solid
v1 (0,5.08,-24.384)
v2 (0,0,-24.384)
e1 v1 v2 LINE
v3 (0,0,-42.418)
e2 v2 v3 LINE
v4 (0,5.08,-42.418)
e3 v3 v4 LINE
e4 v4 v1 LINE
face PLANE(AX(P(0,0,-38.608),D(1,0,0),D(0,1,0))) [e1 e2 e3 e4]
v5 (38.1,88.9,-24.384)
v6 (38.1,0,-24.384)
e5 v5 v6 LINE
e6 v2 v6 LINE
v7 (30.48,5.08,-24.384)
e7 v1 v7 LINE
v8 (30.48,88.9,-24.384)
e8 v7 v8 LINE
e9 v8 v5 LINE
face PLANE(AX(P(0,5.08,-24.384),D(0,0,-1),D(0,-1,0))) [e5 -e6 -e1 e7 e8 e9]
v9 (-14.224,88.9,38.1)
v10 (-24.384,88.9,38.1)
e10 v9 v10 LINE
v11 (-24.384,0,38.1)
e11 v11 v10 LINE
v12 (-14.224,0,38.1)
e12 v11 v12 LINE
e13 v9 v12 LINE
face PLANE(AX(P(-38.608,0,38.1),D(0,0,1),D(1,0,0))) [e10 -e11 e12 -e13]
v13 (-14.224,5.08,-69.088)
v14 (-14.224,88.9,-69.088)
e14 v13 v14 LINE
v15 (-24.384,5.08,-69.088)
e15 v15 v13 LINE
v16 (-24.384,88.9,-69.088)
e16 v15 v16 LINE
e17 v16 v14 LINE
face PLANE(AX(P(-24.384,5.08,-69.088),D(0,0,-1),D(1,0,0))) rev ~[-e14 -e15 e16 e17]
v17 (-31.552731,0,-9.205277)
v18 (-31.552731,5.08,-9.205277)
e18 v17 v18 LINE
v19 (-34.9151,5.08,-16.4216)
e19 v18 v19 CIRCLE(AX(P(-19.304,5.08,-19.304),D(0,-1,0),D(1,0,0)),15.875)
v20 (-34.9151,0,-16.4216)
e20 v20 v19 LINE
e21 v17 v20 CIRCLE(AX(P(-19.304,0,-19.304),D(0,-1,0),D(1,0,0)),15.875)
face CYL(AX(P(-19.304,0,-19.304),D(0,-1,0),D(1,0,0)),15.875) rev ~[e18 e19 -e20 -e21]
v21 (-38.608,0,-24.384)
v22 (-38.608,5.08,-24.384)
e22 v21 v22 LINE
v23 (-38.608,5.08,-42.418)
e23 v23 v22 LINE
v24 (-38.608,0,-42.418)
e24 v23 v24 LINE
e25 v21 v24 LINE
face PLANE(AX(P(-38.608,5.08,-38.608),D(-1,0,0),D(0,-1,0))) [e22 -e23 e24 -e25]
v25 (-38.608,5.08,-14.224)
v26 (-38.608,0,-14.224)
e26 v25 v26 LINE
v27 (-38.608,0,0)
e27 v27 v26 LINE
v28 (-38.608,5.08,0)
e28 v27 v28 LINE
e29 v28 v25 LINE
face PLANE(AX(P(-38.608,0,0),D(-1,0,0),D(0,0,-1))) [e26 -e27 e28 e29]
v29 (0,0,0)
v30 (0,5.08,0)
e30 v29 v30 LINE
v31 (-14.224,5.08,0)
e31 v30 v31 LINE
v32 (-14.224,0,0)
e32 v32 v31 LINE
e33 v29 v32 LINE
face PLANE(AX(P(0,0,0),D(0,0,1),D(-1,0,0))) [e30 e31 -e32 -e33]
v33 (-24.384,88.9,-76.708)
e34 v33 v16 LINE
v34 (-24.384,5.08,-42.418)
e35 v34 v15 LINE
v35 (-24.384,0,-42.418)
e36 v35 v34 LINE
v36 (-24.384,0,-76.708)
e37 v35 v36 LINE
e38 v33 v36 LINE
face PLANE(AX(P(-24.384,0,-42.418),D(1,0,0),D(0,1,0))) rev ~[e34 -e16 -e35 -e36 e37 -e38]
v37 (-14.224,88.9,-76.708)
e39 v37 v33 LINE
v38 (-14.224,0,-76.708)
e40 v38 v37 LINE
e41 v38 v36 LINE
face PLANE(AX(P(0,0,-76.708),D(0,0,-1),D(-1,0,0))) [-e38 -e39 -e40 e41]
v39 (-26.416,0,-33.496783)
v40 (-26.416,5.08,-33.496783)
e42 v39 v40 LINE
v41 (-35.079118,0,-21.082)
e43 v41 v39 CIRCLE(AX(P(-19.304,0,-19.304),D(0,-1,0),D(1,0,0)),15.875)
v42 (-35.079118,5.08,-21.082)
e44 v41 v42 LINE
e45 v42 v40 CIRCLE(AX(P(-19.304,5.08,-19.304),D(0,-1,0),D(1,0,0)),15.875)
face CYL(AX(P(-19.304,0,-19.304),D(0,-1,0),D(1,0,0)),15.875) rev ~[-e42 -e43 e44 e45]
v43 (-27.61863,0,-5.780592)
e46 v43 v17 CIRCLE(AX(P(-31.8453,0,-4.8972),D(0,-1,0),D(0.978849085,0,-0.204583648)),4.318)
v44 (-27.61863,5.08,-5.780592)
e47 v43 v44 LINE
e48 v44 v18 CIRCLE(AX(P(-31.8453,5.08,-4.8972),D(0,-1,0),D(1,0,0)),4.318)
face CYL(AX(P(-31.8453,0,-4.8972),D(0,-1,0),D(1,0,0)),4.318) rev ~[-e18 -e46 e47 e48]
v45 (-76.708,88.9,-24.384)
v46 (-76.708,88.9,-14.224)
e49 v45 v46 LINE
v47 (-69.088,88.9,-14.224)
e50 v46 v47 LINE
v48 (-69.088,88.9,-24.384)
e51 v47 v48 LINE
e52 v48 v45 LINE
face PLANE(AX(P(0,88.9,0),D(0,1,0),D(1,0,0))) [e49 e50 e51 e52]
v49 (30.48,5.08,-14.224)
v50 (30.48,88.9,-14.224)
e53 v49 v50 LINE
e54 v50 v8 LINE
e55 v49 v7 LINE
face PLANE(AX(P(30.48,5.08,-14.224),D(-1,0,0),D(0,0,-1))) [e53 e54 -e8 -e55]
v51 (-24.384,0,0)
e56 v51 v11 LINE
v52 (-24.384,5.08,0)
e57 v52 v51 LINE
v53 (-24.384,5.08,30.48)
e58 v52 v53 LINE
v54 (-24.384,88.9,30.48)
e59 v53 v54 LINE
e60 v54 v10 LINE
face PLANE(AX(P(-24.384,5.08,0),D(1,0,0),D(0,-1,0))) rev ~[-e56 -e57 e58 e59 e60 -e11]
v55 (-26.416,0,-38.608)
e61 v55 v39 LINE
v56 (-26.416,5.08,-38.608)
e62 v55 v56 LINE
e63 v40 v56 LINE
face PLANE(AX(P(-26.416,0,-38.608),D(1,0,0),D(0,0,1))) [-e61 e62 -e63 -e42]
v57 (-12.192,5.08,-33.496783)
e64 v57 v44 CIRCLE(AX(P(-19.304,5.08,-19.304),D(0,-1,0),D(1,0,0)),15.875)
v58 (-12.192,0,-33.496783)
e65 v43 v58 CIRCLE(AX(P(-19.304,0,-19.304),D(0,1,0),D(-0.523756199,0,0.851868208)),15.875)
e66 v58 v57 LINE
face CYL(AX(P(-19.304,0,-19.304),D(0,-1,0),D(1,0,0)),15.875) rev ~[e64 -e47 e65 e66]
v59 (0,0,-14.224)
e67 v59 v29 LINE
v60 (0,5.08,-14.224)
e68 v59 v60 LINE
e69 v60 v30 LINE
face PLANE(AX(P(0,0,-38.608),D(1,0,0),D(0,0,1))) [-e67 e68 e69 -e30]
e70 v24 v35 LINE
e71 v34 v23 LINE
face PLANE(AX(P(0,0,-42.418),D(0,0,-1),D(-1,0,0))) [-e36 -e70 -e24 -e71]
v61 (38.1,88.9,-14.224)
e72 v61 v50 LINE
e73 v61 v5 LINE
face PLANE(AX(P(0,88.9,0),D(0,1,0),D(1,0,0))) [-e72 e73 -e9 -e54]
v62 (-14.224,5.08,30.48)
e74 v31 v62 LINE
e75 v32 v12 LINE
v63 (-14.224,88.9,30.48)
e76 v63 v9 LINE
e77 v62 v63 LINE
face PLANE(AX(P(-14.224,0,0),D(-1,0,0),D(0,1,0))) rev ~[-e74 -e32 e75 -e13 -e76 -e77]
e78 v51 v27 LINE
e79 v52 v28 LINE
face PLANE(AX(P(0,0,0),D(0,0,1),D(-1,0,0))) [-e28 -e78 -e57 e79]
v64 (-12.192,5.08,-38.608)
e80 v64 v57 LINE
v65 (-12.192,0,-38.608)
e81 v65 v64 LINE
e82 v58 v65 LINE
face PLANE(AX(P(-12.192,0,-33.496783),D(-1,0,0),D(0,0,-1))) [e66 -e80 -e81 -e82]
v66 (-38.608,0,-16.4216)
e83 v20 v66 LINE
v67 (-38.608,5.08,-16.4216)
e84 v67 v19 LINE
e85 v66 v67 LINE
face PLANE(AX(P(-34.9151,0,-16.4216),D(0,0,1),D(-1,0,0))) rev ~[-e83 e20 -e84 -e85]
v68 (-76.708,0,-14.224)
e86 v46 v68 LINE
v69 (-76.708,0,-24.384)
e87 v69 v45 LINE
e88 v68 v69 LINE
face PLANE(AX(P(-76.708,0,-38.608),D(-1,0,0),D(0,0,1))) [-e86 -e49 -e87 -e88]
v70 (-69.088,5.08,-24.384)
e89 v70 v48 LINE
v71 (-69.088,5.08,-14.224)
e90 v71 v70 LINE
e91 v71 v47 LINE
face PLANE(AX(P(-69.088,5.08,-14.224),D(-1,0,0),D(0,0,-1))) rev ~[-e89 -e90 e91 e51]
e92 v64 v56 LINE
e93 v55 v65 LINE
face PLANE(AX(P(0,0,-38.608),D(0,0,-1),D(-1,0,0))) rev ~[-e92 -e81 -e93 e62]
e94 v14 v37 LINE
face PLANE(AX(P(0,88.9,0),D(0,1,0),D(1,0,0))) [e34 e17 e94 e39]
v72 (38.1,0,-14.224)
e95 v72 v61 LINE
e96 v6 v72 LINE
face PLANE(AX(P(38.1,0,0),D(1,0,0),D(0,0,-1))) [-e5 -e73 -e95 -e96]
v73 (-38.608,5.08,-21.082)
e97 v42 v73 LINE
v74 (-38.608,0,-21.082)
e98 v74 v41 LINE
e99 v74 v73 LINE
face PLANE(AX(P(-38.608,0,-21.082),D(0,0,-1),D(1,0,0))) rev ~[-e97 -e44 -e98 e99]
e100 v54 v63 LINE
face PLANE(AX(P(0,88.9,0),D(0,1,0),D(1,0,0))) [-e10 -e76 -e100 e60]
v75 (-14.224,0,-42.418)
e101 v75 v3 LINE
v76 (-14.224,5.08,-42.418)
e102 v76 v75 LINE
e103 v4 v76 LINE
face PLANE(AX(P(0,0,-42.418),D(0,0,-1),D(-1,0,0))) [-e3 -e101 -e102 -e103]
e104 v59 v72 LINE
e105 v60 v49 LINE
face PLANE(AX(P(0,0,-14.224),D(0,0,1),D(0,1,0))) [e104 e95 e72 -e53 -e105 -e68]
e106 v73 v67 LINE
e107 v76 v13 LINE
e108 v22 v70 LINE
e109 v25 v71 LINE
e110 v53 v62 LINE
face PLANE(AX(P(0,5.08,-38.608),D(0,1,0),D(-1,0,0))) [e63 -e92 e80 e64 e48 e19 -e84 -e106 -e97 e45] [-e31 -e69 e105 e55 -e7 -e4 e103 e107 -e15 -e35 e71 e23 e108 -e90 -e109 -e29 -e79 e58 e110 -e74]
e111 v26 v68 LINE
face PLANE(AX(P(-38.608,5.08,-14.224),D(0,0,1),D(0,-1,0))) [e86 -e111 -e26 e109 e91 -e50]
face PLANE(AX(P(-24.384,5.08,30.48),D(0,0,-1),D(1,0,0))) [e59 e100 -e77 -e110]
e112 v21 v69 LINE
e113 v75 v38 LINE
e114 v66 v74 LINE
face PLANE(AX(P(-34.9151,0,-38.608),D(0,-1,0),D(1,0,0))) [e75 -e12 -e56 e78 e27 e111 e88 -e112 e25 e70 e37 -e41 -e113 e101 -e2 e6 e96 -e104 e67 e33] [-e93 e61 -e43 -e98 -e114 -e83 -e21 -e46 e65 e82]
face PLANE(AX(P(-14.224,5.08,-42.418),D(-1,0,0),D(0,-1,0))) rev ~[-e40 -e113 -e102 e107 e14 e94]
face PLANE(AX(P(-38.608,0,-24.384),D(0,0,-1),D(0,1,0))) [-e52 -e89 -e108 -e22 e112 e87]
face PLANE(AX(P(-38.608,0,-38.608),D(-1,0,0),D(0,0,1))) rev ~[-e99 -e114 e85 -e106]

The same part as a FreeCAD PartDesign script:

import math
import FreeCAD as App
import Part
import Sketcher
Q = App.Units.Quantity


def add_polygon(sketch, points):
    """Adds a closed chain of lines whose ends are joined by coincident constraints."""
    first, n = sketch.GeometryCount, len(points)
    for a, b in zip(points, points[1:] + points[:1]):
        sketch.addGeometry(Part.LineSegment(App.Vector(*a, 0), App.Vector(*b, 0)), False)
    for i in range(n):
        sketch.addConstraint(Sketcher.Constraint("Coincident", first + i, 2, first + (i + 1) % n, 1))

doc = App.newDocument("Part")
body = doc.addObject("PartDesign::Body", "Body")
body.AllowCompound = True

# Sketch on XZ plane
sketch1 = body.newObject("Sketcher::SketchObject", "Sketch")
sketch1.AttachmentSupport = (doc.getObject("XZ_Plane"), [""])
sketch1.MapMode = "FlatFace"
add_polygon(sketch1, [(-38.608, 0), (0, 0), (0, -38.608), (-38.608, -38.608)])  # lines 0-3
sketch1.addConstraint([
    Sketcher.Constraint("Horizontal", 0),
    Sketcher.Constraint("Vertical", 1),
    Sketcher.Constraint("Horizontal", 2),
    Sketcher.Constraint("Vertical", 3),
    Sketcher.Constraint("Coincident", 0, 2, -1, 1),
    Sketcher.Constraint("Equal", 2, 1),
    Sketcher.Constraint("DistanceX", 0, 1, 0, 2, Q("1.52 in")),
])
pad1 = body.newObject("PartDesign::Pad", "Pad")
pad1.Profile = sketch1
pad1.Length = Q("0.2 in")
pad1.Reversed = True

# Sketch on XZ plane
sketch2 = body.newObject("Sketcher::SketchObject", "Sketch001")
sketch2.AttachmentSupport = (doc.getObject("XZ_Plane"), [""])
sketch2.MapMode = "FlatFace"
sketch2.addGeometry([
    Part.ArcOfCircle(Part.Circle(App.Vector(-19.304, -19.304, 0), App.Vector(0, 0, 1), 15.875), math.radians(-63.384562), math.radians(121.584549)),  # 0
    Part.ArcOfCircle(Part.Circle(App.Vector(-31.8453, -4.8972, 0), App.Vector(0, 0, 1), 4.318), math.radians(-11.805127), math.radians(273.885086)),  # 1
    Part.ArcOfCircle(Part.Circle(App.Vector(-19.304, -19.304, 0), App.Vector(0, 0, 1), 15.875), math.radians(140.49541), math.radians(169.538846)),  # 2
    Part.LineSegment(App.Vector(-34.9151, -16.4216, 0), App.Vector(-38.608, -16.4216, 0)),  # 3
    Part.LineSegment(App.Vector(-38.608, -16.4216, 0), App.Vector(-38.608, -21.082, 0)),  # 4
    Part.LineSegment(App.Vector(-38.608, -21.082, 0), App.Vector(-35.079118, -21.082, 0)),  # 5
    Part.ArcOfCircle(Part.Circle(App.Vector(-19.304, -19.304, 0), App.Vector(0, 0, 1), 15.875), math.radians(-173.56938), math.radians(-116.615438)),  # 6
    Part.LineSegment(App.Vector(-26.416, -33.496783, 0), App.Vector(-26.416, -38.608, 0)),  # 7
    Part.LineSegment(App.Vector(-26.416, -38.608, 0), App.Vector(-12.192, -38.608, 0)),  # 8
    Part.LineSegment(App.Vector(-12.192, -38.608, 0), App.Vector(-12.192, -33.496783, 0)),  # 9
], False)
sketch2.addConstraint([
    Sketcher.Constraint("Coincident", 0, 2, 1, 1),
    Sketcher.Constraint("Coincident", 1, 2, 2, 1),
    Sketcher.Constraint("Coincident", 2, 2, 3, 1),
    Sketcher.Constraint("Coincident", 3, 2, 4, 1),
    Sketcher.Constraint("Coincident", 4, 2, 5, 1),
    Sketcher.Constraint("Coincident", 5, 2, 6, 1),
    Sketcher.Constraint("Coincident", 6, 2, 7, 1),
    Sketcher.Constraint("Coincident", 7, 2, 8, 1),
    Sketcher.Constraint("Coincident", 8, 2, 9, 1),
    Sketcher.Constraint("Coincident", 9, 2, 0, 1),
    Sketcher.Constraint("Horizontal", 3),
    Sketcher.Constraint("Vertical", 4),
    Sketcher.Constraint("Horizontal", 5),
    Sketcher.Constraint("Vertical", 7),
    Sketcher.Constraint("Horizontal", 8),
    Sketcher.Constraint("Vertical", 9),
    Sketcher.Constraint("Coincident", 2, 3, 0, 3),
    Sketcher.Constraint("Coincident", 6, 3, 0, 3),
    Sketcher.Constraint("Equal", 0, 2),
    Sketcher.Constraint("Equal", 2, 6),
    Sketcher.Constraint("Horizontal", 6, 2, 9, 2),
    Sketcher.Constraint("Radius", 1, Q("0.17 in")),
    Sketcher.Constraint("Radius", 0, Q("0.625 in")),
    Sketcher.Constraint("DistanceX", 8, 1, 8, 2, Q("0.56 in")),
    Sketcher.Constraint("DistanceX", 3, 2, 3, 1, Q("0.1454 in")),
    Sketcher.Constraint("DistanceY", 4, 2, 4, 1, Q("4.6604 mm")),
    Sketcher.Constraint("DistanceX", 0, 3, -1, 1, Q("0.76 in")),
    Sketcher.Constraint("DistanceY", 0, 3, -1, 1, Q("0.76 in")),
    Sketcher.Constraint("DistanceX", 3, 2, -1, 1, Q("1.52 in")),
    Sketcher.Constraint("DistanceY", 7, 2, -1, 1, Q("1.52 in")),
    Sketcher.Constraint("DistanceY", 1, 3, -1, 1, Q("0.1928 in")),
    Sketcher.Constraint("DistanceX", 1, 3, 0, 2, Q("0.1664 in")),
])
pocket1 = body.newObject("PartDesign::Pocket", "Pocket")
pocket1.Profile = sketch2
pocket1.Length = Q("0.25 in")

# Sketch on YZ plane
sketch3 = body.newObject("Sketcher::SketchObject", "Sketch002")
sketch3.AttachmentSupport = (doc.getObject("YZ_Plane"), [""])
sketch3.MapMode = "FlatFace"
add_polygon(sketch3, [(5.08, -24.384), (5.08, -14.224), (0, -14.224), (0, -24.384)])  # lines 0-3
sketch3.addConstraint([
    Sketcher.Constraint("Vertical", 0),
    Sketcher.Constraint("Horizontal", 1),
    Sketcher.Constraint("Vertical", 2),
    Sketcher.Constraint("Horizontal", 3),
    Sketcher.Constraint("PointOnObject", 1, 2, -2),
    Sketcher.Constraint("DistanceY", 0, 1, 0, 2, Q("0.4 in")),
    Sketcher.Constraint("DistanceX", 1, 2, 1, 1, Q("0.2 in")),
    Sketcher.Constraint("DistanceY", 0, 2, -1, 1, Q("0.56 in")),
])
pad2 = body.newObject("PartDesign::Pad", "Pad001")
pad2.Profile = sketch3
pad2.Length = Q("1.5 in")

# Sketch on XY plane
sketch4 = body.newObject("Sketcher::SketchObject", "Sketch003")
sketch4.AttachmentSupport = (doc.getObject("XY_Plane"), [""])
sketch4.MapMode = "FlatFace"
add_polygon(sketch4, [(-24.384, 5.08), (-24.384, 0), (-14.224, 0), (-14.224, 5.08)])  # lines 0-3
sketch4.addConstraint([
    Sketcher.Constraint("Vertical", 0),
    Sketcher.Constraint("Horizontal", 1),
    Sketcher.Constraint("Vertical", 2),
    Sketcher.Constraint("Horizontal", 3),
    Sketcher.Constraint("PointOnObject", 0, 2, -1),
    Sketcher.Constraint("DistanceX", 1, 1, 1, 2, Q("0.4 in")),
    Sketcher.Constraint("DistanceY", 0, 2, 0, 1, Q("0.2 in")),
    Sketcher.Constraint("DistanceX", 0, 2, -1, 1, Q("0.96 in")),
])
pad3 = body.newObject("PartDesign::Pad", "Pad002")
pad3.Profile = sketch4
pad3.Length = Q("1.5 in")

# Sketch on YZ plane
sketch5 = body.newObject("Sketcher::SketchObject", "Sketch004")
sketch5.AttachmentSupport = (doc.getObject("YZ_Plane"), [""])
sketch5.MapMode = "FlatFace"
sketch5.AttachmentOffset = App.Placement(App.Vector(0, 0, -1.52 * 25.4), App.Rotation())
add_polygon(sketch5, [(0, -24.384), (0, -14.224), (5.08, -14.224), (5.08, -24.384)])  # lines 0-3
sketch5.addConstraint([
    Sketcher.Constraint("Vertical", 0),
    Sketcher.Constraint("Horizontal", 1),
    Sketcher.Constraint("Vertical", 2),
    Sketcher.Constraint("Horizontal", 3),
    Sketcher.Constraint("PointOnObject", 0, 2, -2),
    Sketcher.Constraint("DistanceY", 0, 1, 0, 2, Q("0.4 in")),
    Sketcher.Constraint("DistanceX", 1, 1, 1, 2, Q("0.2 in")),
    Sketcher.Constraint("DistanceY", 0, 2, -1, 1, Q("0.56 in")),
])
pad4 = body.newObject("PartDesign::Pad", "Pad003")
pad4.Profile = sketch5
pad4.Length = Q("1.5 in")
pad4.Reversed = True

# Sketch on XY plane
sketch6 = body.newObject("Sketcher::SketchObject", "Sketch005")
sketch6.AttachmentSupport = (doc.getObject("XY_Plane"), [""])
sketch6.MapMode = "FlatFace"
sketch6.AttachmentOffset = App.Placement(App.Vector(0, 0, -1.52 * 25.4), App.Rotation())
add_polygon(sketch6, [(0, 5.08), (0, 0), (-38.608, 0), (-38.608, 5.08)])  # lines 0-3
sketch6.addConstraint([
    Sketcher.Constraint("Vertical", 0),
    Sketcher.Constraint("Horizontal", 1),
    Sketcher.Constraint("Vertical", 2),
    Sketcher.Constraint("Horizontal", 3),
    Sketcher.Constraint("Coincident", 0, 2, -1, 1),
    Sketcher.Constraint("DistanceY", 0, 2, 0, 1, Q("0.2 in")),
    Sketcher.Constraint("DistanceX", 1, 2, 1, 1, Q("1.52 in")),
])
pad5 = body.newObject("PartDesign::Pad", "Pad004")
pad5.Profile = sketch6
pad5.Length = Q("0.15 in")
pad5.Reversed = True

# Sketch on XY plane
sketch7 = body.newObject("Sketcher::SketchObject", "Sketch006")
sketch7.AttachmentSupport = (doc.getObject("XY_Plane"), [""])
sketch7.MapMode = "FlatFace"
sketch7.AttachmentOffset = App.Placement(App.Vector(0, 0, -1.67 * 25.4), App.Rotation())
add_polygon(sketch7, [(-24.384, 0), (-24.384, 5.08), (-14.224, 5.08), (-14.224, 0)])  # lines 0-3
sketch7.addConstraint([
    Sketcher.Constraint("Vertical", 0),
    Sketcher.Constraint("Horizontal", 1),
    Sketcher.Constraint("Vertical", 2),
    Sketcher.Constraint("Horizontal", 3),
    Sketcher.Constraint("PointOnObject", 2, 2, -1),
    Sketcher.Constraint("DistanceX", 1, 1, 1, 2, Q("0.4 in")),
    Sketcher.Constraint("DistanceY", 0, 1, 0, 2, Q("0.2 in")),
    Sketcher.Constraint("DistanceX", 0, 2, -1, 1, Q("0.96 in")),
])
pad6 = body.newObject("PartDesign::Pad", "Pad005")
pad6.Profile = sketch7
pad6.Length = Q("1.35 in")
pad6.Reversed = True

# Sketch on XZ plane
sketch8 = body.newObject("Sketcher::SketchObject", "Sketch007")
sketch8.AttachmentSupport = (doc.getObject("XZ_Plane"), [""])
sketch8.MapMode = "FlatFace"
sketch8.AttachmentOffset = App.Placement(App.Vector(0, 0, -0.2 * 25.4), App.Rotation())
add_polygon(sketch8, [(-69.088, -24.384), (-76.708, -24.384), (-76.708, -14.224), (-69.088, -14.224)])  # lines 0-3
add_polygon(sketch8, [(-14.224, -69.088), (-14.224, -76.708), (-24.384, -76.708), (-24.384, -69.088)])  # lines 4-7
add_polygon(sketch8, [(30.48, -14.224), (38.1, -14.224), (38.1, -24.384), (30.48, -24.384)])  # lines 8-11
add_polygon(sketch8, [(-14.224, 38.1), (-14.224, 30.48), (-24.384, 30.48), (-24.384, 38.1)])  # lines 12-15
sketch8.addConstraint([
    Sketcher.Constraint("Horizontal", 0),
    Sketcher.Constraint("Vertical", 1),
    Sketcher.Constraint("Horizontal", 2),
    Sketcher.Constraint("Vertical", 3),
    Sketcher.Constraint("Vertical", 4),
    Sketcher.Constraint("Horizontal", 5),
    Sketcher.Constraint("Vertical", 6),
    Sketcher.Constraint("Horizontal", 7),
    Sketcher.Constraint("Horizontal", 8),
    Sketcher.Constraint("Vertical", 9),
    Sketcher.Constraint("Horizontal", 10),
    Sketcher.Constraint("Vertical", 11),
    Sketcher.Constraint("Vertical", 12),
    Sketcher.Constraint("Horizontal", 13),
    Sketcher.Constraint("Vertical", 14),
    Sketcher.Constraint("Horizontal", 15),
    Sketcher.Constraint("Horizontal", 2, 2, 8, 2),
    Sketcher.Constraint("Horizontal", 3, 2, 9, 2),
    Sketcher.Constraint("Vertical", 7, 2, 12, 2),
    Sketcher.Constraint("Vertical", 6, 2, 13, 2),
    Sketcher.Constraint("Equal", 2, 8),
    Sketcher.Constraint("Equal", 15, 1),
    Sketcher.Constraint("Equal", 10, 4),
    Sketcher.Constraint("Equal", 6, 12),
    Sketcher.Constraint("DistanceX", 0, 2, 0, 1, Q("0.3 in")),
    Sketcher.Constraint("DistanceX", 5, 2, 5, 1, Q("0.4 in")),
    Sketcher.Constraint("DistanceX", -1, 1, 8, 2, Q("1.5 in")),
    Sketcher.Constraint("DistanceY", -1, 1, 12, 2, Q("1.2 in")),
    Sketcher.Constraint("DistanceX", 0, 2, -1, 1, Q("3.02 in")),
    Sketcher.Constraint("DistanceY", 0, 2, -1, 1, Q("0.96 in")),
    Sketcher.Constraint("DistanceX", 4, 2, -1, 1, Q("0.56 in")),
    Sketcher.Constraint("DistanceY", 4, 2, -1, 1, Q("3.02 in")),
])
pad7 = body.newObject("PartDesign::Pad", "Pad006")
pad7.Profile = sketch8
pad7.Length = Q("3.3 in")
pad7.Reversed = True

doc.recompute()
